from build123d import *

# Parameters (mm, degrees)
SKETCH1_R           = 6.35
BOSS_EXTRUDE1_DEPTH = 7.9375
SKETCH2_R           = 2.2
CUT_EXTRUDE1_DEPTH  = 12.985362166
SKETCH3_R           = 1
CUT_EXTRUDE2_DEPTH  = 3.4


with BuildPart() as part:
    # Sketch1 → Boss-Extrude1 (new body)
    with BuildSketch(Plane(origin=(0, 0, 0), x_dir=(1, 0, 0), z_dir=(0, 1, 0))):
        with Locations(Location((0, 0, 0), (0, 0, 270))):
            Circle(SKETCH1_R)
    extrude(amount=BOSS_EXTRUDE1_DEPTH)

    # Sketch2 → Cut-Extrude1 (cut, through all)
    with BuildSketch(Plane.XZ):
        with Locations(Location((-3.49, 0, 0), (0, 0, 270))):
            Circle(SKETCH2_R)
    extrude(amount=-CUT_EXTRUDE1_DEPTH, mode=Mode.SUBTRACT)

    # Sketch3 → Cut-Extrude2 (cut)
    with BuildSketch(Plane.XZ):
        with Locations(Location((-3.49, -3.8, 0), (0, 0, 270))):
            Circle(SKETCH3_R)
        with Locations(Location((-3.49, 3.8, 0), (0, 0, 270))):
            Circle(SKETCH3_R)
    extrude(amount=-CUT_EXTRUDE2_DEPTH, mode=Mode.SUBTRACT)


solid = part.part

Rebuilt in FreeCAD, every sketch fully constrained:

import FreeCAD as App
import Part
import Sketcher
Q = App.Units.Quantity

doc = App.newDocument("Part")
body = doc.addObject("PartDesign::Body", "Body")

# Sketch on XZ plane
sketch1 = doc.addObject("Sketcher::SketchObject", "Sketch")
body.addObject(sketch1)
sketch1.AttachmentSupport = (doc.XZ_Plane, [""])
sketch1.MapMode = "FlatFace"
sketch1.addGeometry(Part.Circle(App.Vector(0, 0, 0), App.Vector(0, 0, 1), 6), False)
sketch1.addConstraint([
    Sketcher.Constraint("Coincident", 0, 3, -1, 1),
    Sketcher.Constraint("Diameter", 0, Q("12.7 mm")),
])
pad1 = doc.addObject("PartDesign::Pad", "Pad")
body.addObject(pad1)
pad1.Profile = sketch1
pad1.Length = 7.9375
pad1.Reversed = True

# Sketch on XZ plane
sketch2 = doc.addObject("Sketcher::SketchObject", "Sketch001")
body.addObject(sketch2)
sketch2.AttachmentSupport = (doc.XZ_Plane, [""])
sketch2.MapMode = "FlatFace"
sketch2.addGeometry(Part.Circle(App.Vector(-3.5, 0, 0), App.Vector(0, 0, 1), 2.2), False)
sketch2.addConstraint([
    Sketcher.Constraint("PointOnObject", 0, 3, -1),
    Sketcher.Constraint("Diameter", 0, Q("4.4 mm")),
    Sketcher.Constraint("DistanceX", 0, 3, -1, 1, Q("3.49 mm")),
])
pocket1 = doc.addObject("PartDesign::Pocket", "Pocket")
body.addObject(pocket1)
pocket1.Profile = sketch2
pocket1.Type = "ThroughAll"

# Sketch on XZ plane
sketch3 = doc.addObject("Sketcher::SketchObject", "Sketch002")
body.addObject(sketch3)
sketch3.AttachmentSupport = (doc.XZ_Plane, [""])
sketch3.MapMode = "FlatFace"
sketch3.addGeometry([
    Part.Circle(App.Vector(-3.5, -3.8, 0), App.Vector(0, 0, 1), 1),
    Part.Circle(App.Vector(-3.5, 3.8, 0), App.Vector(0, 0, 1), 1),
], False)
sketch3.addConstraint([
    Sketcher.Constraint("Equal", 0, 1),
    Sketcher.Constraint("Symmetric", 0, 3, 1, 3, -1),
    Sketcher.Constraint("Diameter", 0, Q("2 mm")),
    Sketcher.Constraint("DistanceY", 0, 3, -1, 1, Q("3.8 mm")),
    Sketcher.Constraint("DistanceX", 0, 3, -1, 1, Q("3.49 mm")),
])
pocket2 = doc.addObject("PartDesign::Pocket", "Pocket001")
body.addObject(pocket2)
pocket2.Profile = sketch3
pocket2.Length = 3.4

doc.recompute()
